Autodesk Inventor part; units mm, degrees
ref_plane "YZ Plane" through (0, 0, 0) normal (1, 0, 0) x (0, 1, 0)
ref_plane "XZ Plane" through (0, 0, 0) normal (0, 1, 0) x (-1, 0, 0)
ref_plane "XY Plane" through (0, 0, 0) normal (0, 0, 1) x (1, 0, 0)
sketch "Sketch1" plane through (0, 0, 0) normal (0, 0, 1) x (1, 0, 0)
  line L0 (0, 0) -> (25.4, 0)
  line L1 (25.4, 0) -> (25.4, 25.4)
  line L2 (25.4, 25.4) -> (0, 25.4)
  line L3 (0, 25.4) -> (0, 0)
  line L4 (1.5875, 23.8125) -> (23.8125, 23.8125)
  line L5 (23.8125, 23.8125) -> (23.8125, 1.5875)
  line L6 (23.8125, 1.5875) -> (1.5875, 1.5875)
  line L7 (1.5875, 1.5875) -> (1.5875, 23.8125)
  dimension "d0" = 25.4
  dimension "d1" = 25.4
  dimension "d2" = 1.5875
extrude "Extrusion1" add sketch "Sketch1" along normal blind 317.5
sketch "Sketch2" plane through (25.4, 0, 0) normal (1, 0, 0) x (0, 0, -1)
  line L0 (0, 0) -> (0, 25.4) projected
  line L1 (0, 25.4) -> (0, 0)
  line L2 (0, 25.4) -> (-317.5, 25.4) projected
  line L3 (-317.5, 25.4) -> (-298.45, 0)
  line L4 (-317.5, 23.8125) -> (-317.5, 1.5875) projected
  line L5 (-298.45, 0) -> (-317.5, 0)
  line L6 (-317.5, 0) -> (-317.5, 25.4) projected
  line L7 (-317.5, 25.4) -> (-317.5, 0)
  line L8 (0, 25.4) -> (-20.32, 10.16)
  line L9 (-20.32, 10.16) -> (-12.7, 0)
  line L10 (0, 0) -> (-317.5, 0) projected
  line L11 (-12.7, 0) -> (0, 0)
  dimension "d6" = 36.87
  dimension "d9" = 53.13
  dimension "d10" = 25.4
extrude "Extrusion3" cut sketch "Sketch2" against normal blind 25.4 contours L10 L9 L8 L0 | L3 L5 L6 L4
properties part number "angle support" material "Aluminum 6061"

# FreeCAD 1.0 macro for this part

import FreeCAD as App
import Part
import Sketcher
from FreeCAD import Vector
Q = App.Units.Quantity


def add_polygon(sketch, points):
    """Adds a closed chain of lines whose ends are joined by coincident constraints."""
    first, n = sketch.GeometryCount, len(points)
    for a, b in zip(points, points[1:] + points[:1]):
        sketch.addGeometry(Part.LineSegment(App.Vector(*a, 0), App.Vector(*b, 0)), False)
    for i in range(n):
        sketch.addConstraint(Sketcher.Constraint("Coincident", first + i, 2, first + (i + 1) % n, 1))

doc = App.newDocument("Part")
body = doc.addObject("PartDesign::Body", "Body")

# Sketch on XY plane
sketch1 = body.newObject("Sketcher::SketchObject", "Sketch")
sketch1.AttachmentSupport = (doc.getObject("XY_Plane"), [""])
sketch1.MapMode = "FlatFace"
add_polygon(sketch1, [(0, 25), (0, 0), (25, 0), (25, 25)])  # lines 0-3
add_polygon(sketch1, [(2, 2), (2, 24), (24, 24), (24, 2)])  # lines 4-7
sketch1.addConstraint(Sketcher.Constraint("Vertical", 0))
sketch1.addConstraint(Sketcher.Constraint("Horizontal", 1))
sketch1.addConstraint(Sketcher.Constraint("Vertical", 2))
sketch1.addConstraint(Sketcher.Constraint("Horizontal", 3))
sketch1.addConstraint(Sketcher.Constraint("Vertical", 4))
sketch1.addConstraint(Sketcher.Constraint("Horizontal", 5))
sketch1.addConstraint(Sketcher.Constraint("Vertical", 6))
sketch1.addConstraint(Sketcher.Constraint("Horizontal", 7))
sketch1.addConstraint(Sketcher.Constraint("Coincident", 0, 2, -1, 1))
sketch1.addConstraint(Sketcher.Constraint("Equal", 3, 0))
sketch1.addConstraint(Sketcher.Constraint("Equal", 7, 4))
sketch1.addConstraint(Sketcher.Constraint("DistanceX", 1, 1, 1, 2, Q("1 in")))
sketch1.addConstraint(Sketcher.Constraint("DistanceX", -1, 1, 4, 2, Q("0.0625 in")))
sketch1.addConstraint(Sketcher.Constraint("DistanceY", -1, 1, 6, 2, Q("0.0625 in")))
sketch1.addConstraint(Sketcher.Constraint("DistanceY", 4, 2, 3, 2, Q("0.0625 in")))
pad1 = body.newObject("PartDesign::Pad", "Pad")
pad1.Profile = sketch1
pad1.Length = Q("12.5 in")

# Sketch on YZ plane
sketch2 = body.newObject("Sketcher::SketchObject", "Sketch001")
sketch2.AttachmentSupport = (doc.getObject("YZ_Plane"), [""])
sketch2.MapMode = "FlatFace"
sketch2.AttachmentOffset = App.Placement(Vector(0, 0, 1 * 25.4), App.Rotation())
add_polygon(sketch2, [(0, 13), (0, 0), (25, 0), (10, 20)])  # lines 0-3
add_polygon(sketch2, [(0, 298), (25, 318), (0, 318)])  # lines 4-6
sketch2.addConstraint(Sketcher.Constraint("Vertical", 0))
sketch2.addConstraint(Sketcher.Constraint("Horizontal", 1))
sketch2.addConstraint(Sketcher.Constraint("Horizontal", 5))
sketch2.addConstraint(Sketcher.Constraint("Vertical", 6))
sketch2.addConstraint(Sketcher.Constraint("Coincident", 0, 2, -1, 1))
sketch2.addConstraint(Sketcher.Constraint("PointOnObject", 5, 2, -2))
sketch2.addConstraint(Sketcher.Constraint("Perpendicular", 2, 3))
sketch2.addConstraint(Sketcher.Constraint("Parallel", 3, 4))
sketch2.addConstraint(Sketcher.Constraint("Vertical", 1, 2, 4, 2))
sketch2.addConstraint(Sketcher.Constraint("DistanceX", 1, 1, 1, 2, Q("1 in")))
sketch2.addConstraint(Sketcher.Constraint("Distance", 2, Q("1 in")))
sketch2.addConstraint(Sketcher.Constraint("Angle", 4, Q("36.87 deg")))
sketch2.addConstraint(Sketcher.Constraint("DistanceY", 3, 2, 4, 2, Q("12 in")))
pocket1 = body.newObject("PartDesign::Pocket", "Pocket")
pocket1.Profile = sketch2
pocket1.Length = Q("1 in")

doc.recompute()
